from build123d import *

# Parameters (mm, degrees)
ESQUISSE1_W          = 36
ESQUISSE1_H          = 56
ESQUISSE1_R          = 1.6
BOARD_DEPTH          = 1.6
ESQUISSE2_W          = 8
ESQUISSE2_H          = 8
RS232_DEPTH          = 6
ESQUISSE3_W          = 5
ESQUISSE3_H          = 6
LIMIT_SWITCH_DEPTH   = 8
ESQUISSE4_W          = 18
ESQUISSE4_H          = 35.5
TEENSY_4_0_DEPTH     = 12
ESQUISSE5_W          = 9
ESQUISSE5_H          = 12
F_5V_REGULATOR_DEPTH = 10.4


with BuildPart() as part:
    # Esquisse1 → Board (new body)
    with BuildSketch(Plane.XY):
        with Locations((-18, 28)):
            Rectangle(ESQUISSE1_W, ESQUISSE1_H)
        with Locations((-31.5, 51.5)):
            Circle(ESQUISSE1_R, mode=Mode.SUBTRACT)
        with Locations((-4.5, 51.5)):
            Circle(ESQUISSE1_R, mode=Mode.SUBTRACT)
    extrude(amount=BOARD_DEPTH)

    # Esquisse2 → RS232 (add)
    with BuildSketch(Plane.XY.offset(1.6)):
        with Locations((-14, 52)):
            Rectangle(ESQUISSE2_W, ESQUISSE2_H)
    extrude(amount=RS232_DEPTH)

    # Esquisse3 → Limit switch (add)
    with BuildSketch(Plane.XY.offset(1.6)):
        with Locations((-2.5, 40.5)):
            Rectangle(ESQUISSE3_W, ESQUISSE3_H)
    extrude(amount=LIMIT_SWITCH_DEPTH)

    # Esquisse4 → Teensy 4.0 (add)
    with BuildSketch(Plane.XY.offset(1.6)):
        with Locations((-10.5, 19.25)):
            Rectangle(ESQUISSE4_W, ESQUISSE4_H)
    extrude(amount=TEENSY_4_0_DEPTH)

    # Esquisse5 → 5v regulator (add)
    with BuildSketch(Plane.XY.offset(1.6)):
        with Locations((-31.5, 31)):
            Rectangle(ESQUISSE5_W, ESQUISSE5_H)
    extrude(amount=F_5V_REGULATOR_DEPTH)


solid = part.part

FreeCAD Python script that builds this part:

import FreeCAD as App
import Part
import Sketcher
from FreeCAD import Vector
Q = App.Units.Quantity


def add_polygon(sketch, points):
    """Adds a closed chain of lines whose ends are joined by coincident constraints."""
    first, n = sketch.GeometryCount, len(points)
    for a, b in zip(points, points[1:] + points[:1]):
        sketch.addGeometry(Part.LineSegment(App.Vector(*a, 0), App.Vector(*b, 0)), False)
    for i in range(n):
        sketch.addConstraint(Sketcher.Constraint("Coincident", first + i, 2, first + (i + 1) % n, 1))

doc = App.newDocument("Part")
body = doc.addObject("PartDesign::Body", "Body")

sketch1 = body.newObject("Sketcher::SketchObject", "Sketch")
sketch1.AttachmentSupport = (doc.getObject("XY_Plane"), [""])
sketch1.MapMode = "FlatFace"
add_polygon(sketch1, [(-36, 56), (-36, 0), (0, 0), (0, 56)])
sketch1.addGeometry(Part.Circle(Vector(-31.5, 51.5, 0), Vector(0, 0, 1), 1.6), False)
sketch1.addGeometry(Part.Circle(Vector(-4.5, 51.5, 0), Vector(0, 0, 1), 1.6), False)
sketch1.addConstraint([
    Sketcher.Constraint("Vertical", 0),
    Sketcher.Constraint("Horizontal", 1),
    Sketcher.Constraint("Vertical", 2),
    Sketcher.Constraint("Horizontal", 3),
    Sketcher.Constraint("Coincident", 1, 2, -1, 1),
    Sketcher.Constraint("Equal", 4, 5),
    Sketcher.Constraint("Horizontal", 4, 3, 5, 3),
    Sketcher.Constraint("Diameter", 4, Q("3.2 mm")),
    Sketcher.Constraint("DistanceX", 1, 1, 1, 2, Q("36 mm")),
    Sketcher.Constraint("DistanceY", 0, 2, 0, 1, Q("56 mm")),
    Sketcher.Constraint("DistanceX", 4, 3, 5, 3, Q("27 mm")),
    Sketcher.Constraint("DistanceX", 4, 3, -1, 1, Q("31.5 mm")),
    Sketcher.Constraint("DistanceY", -1, 1, 4, 3, Q("51.5 mm")),
])
pad1 = body.newObject("PartDesign::Pad", "Pad")
pad1.Profile = sketch1
pad1.Length = 1.6

sketch2 = body.newObject("Sketcher::SketchObject", "Sketch001")
sketch2.AttachmentSupport = (doc.getObject("XY_Plane"), [""])
sketch2.MapMode = "FlatFace"
sketch2.AttachmentOffset = App.Placement(Vector(0, 0, 1.6), App.Rotation())
add_polygon(sketch2, [(-18, 56), (-18, 48), (-10, 48), (-10, 56)])
sketch2.addConstraint([
    Sketcher.Constraint("Vertical", 0),
    Sketcher.Constraint("Horizontal", 1),
    Sketcher.Constraint("Vertical", 2),
    Sketcher.Constraint("Horizontal", 3),
    Sketcher.Constraint("Equal", 3, 0),
    Sketcher.Constraint("DistanceX", 1, 1, 1, 2, Q("8 mm")),
    Sketcher.Constraint("DistanceX", 0, 2, -1, 1, Q("18 mm")),
    Sketcher.Constraint("DistanceY", -1, 1, 0, 2, Q("48 mm")),
])
pad2 = body.newObject("PartDesign::Pad", "Pad001")
pad2.Profile = sketch2
pad2.Length = 6

sketch3 = body.newObject("Sketcher::SketchObject", "Sketch002")
sketch3.AttachmentSupport = (doc.getObject("XY_Plane"), [""])
sketch3.MapMode = "FlatFace"
sketch3.AttachmentOffset = App.Placement(Vector(0, 0, 1.6), App.Rotation())
add_polygon(sketch3, [(-5, 44), (-5, 38), (0, 38), (0, 44)])
sketch3.addConstraint([
    Sketcher.Constraint("Vertical", 0),
    Sketcher.Constraint("Horizontal", 1),
    Sketcher.Constraint("Vertical", 2),
    Sketcher.Constraint("Horizontal", 3),
    Sketcher.Constraint("PointOnObject", 1, 2, -2),
    Sketcher.Constraint("DistanceX", 1, 1, 1, 2, Q("5 mm")),
    Sketcher.Constraint("DistanceY", 0, 2, 0, 1, Q("6 mm")),
    Sketcher.Constraint("DistanceY", -1, 1, 0, 2, Q("37.5 mm")),
])
pad3 = body.newObject("PartDesign::Pad", "Pad002")
pad3.Profile = sketch3
pad3.Length = 8

sketch4 = body.newObject("Sketcher::SketchObject", "Sketch003")
sketch4.AttachmentSupport = (doc.getObject("XY_Plane"), [""])
sketch4.MapMode = "FlatFace"
sketch4.AttachmentOffset = App.Placement(Vector(0, 0, 1.6), App.Rotation())
add_polygon(sketch4, [(-20, 37), (-20, 2), (-2, 2), (-2, 37)])
sketch4.addConstraint([
    Sketcher.Constraint("Vertical", 0),
    Sketcher.Constraint("Horizontal", 1),
    Sketcher.Constraint("Vertical", 2),
    Sketcher.Constraint("Horizontal", 3),
    Sketcher.Constraint("DistanceX", 1, 1, 1, 2, Q("18 mm")),
    Sketcher.Constraint("DistanceY", 0, 2, 0, 1, Q("35.5 mm")),
    Sketcher.Constraint("DistanceY", -1, 1, 2, 2, Q("37 mm")),
    Sketcher.Constraint("DistanceX", 0, 2, -1, 1, Q("19.5 mm")),
])
pad4 = body.newObject("PartDesign::Pad", "Pad003")
pad4.Profile = sketch4
pad4.Length = 12

sketch5 = body.newObject("Sketcher::SketchObject", "Sketch004")
sketch5.AttachmentSupport = (doc.getObject("XY_Plane"), [""])
sketch5.MapMode = "FlatFace"
sketch5.AttachmentOffset = App.Placement(Vector(0, 0, 1.6), App.Rotation())
add_polygon(sketch5, [(-36, 37), (-36, 25), (-27, 25), (-27, 37)])
sketch5.addConstraint([
    Sketcher.Constraint("Vertical", 0),
    Sketcher.Constraint("Horizontal", 1),
    Sketcher.Constraint("Vertical", 2),
    Sketcher.Constraint("Horizontal", 3),
    Sketcher.Constraint("DistanceX", 1, 1, 1, 2, Q("9 mm")),
    Sketcher.Constraint("DistanceY", 0, 2, 0, 1, Q("12 mm")),
    Sketcher.Constraint("DistanceX", 0, 2, -1, 1, Q("36 mm")),
    Sketcher.Constraint("DistanceY", -1, 1, 0, 2, Q("25 mm")),
])
pad5 = body.newObject("PartDesign::Pad", "Pad004")
pad5.Profile = sketch5
pad5.Length = 10.4

doc.recompute()
